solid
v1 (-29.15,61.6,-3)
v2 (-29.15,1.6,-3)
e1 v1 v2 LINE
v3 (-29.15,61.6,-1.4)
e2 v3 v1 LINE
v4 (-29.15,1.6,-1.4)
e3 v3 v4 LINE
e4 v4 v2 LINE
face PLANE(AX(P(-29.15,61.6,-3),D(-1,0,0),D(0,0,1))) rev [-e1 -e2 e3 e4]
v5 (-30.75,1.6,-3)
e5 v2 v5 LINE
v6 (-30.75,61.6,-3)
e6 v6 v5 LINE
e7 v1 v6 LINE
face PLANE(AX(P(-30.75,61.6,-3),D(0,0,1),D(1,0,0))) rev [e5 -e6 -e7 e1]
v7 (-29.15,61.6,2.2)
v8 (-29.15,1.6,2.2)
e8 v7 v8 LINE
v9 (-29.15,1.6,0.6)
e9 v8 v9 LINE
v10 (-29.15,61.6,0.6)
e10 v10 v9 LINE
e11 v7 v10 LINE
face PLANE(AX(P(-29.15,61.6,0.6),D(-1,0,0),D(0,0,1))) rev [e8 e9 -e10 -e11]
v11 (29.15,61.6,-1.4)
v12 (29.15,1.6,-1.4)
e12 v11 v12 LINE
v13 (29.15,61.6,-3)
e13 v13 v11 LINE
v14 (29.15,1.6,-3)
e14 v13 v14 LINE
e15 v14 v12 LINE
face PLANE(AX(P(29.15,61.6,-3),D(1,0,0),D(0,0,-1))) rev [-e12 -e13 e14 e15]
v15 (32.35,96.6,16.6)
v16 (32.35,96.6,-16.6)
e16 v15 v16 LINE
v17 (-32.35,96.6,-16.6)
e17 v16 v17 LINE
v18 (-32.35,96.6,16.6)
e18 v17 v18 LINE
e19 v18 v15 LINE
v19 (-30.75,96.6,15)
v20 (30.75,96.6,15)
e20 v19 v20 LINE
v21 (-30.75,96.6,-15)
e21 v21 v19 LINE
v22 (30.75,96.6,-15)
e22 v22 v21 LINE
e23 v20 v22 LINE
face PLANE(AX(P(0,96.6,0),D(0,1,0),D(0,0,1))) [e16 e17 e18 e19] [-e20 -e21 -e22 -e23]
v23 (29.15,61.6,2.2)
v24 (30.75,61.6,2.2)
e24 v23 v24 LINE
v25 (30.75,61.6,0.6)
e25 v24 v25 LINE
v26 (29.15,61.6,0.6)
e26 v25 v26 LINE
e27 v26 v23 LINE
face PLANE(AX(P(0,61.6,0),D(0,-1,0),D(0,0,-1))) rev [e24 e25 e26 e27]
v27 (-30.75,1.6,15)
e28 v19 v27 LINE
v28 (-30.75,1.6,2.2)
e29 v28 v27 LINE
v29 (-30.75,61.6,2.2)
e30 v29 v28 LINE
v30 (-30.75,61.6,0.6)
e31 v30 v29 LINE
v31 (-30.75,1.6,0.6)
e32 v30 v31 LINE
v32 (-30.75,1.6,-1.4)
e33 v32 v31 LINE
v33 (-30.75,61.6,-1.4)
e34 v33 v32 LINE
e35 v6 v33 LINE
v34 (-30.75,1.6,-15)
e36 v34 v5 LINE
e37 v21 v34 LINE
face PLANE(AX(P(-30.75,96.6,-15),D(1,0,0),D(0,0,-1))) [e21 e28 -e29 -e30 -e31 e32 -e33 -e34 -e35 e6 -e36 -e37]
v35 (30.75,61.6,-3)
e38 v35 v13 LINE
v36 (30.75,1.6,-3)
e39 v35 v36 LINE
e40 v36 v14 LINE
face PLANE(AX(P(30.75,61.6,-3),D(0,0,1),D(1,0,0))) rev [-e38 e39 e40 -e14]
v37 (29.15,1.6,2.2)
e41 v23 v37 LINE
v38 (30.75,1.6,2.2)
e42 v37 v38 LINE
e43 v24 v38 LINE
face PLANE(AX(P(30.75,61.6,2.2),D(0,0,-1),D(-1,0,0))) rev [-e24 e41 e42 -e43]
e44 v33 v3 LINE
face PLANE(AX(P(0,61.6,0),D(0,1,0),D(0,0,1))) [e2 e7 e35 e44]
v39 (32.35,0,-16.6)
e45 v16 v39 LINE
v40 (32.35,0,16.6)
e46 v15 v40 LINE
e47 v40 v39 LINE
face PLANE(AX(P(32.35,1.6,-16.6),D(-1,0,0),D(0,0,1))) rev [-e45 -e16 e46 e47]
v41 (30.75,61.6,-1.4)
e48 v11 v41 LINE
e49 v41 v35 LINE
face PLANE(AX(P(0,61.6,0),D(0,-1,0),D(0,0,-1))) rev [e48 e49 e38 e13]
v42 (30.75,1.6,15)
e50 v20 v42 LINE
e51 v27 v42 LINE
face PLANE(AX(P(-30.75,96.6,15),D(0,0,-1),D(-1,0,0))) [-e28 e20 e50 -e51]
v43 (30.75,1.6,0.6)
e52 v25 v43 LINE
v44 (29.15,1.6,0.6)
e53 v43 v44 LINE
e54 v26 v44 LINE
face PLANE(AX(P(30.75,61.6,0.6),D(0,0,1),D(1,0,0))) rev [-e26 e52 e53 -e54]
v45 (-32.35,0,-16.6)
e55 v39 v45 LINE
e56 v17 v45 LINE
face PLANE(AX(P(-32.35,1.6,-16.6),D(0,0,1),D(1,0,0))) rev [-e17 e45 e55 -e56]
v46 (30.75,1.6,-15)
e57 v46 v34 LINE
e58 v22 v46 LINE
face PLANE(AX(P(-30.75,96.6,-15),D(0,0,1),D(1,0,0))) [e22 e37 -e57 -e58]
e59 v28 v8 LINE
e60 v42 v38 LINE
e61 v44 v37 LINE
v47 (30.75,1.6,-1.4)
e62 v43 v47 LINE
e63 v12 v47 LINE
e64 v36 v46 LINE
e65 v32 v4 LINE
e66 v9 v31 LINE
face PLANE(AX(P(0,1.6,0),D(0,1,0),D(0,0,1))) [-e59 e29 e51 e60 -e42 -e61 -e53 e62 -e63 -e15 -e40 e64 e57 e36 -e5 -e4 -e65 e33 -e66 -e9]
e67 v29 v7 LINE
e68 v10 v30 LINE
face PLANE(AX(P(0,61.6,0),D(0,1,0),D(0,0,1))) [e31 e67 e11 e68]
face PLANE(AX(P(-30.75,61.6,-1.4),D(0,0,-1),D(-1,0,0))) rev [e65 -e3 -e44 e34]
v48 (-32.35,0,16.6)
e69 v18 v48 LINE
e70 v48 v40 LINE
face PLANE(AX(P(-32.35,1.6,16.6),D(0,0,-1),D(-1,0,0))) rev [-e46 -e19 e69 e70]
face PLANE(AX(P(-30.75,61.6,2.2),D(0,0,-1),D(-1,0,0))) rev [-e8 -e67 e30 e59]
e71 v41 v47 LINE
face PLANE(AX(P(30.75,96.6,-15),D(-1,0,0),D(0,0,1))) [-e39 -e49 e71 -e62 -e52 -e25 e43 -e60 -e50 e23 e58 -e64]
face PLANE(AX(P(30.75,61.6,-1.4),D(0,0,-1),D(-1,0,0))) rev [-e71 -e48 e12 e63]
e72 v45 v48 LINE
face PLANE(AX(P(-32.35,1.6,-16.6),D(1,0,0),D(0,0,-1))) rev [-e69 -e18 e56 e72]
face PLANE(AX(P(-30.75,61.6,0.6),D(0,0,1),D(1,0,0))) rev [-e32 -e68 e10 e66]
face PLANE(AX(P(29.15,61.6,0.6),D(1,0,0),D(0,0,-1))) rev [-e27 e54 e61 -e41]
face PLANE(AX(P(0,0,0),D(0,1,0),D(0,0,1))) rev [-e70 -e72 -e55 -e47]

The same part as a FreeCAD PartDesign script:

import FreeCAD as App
import Part
import Sketcher
Q = App.Units.Quantity

doc = App.newDocument("Part")
params = doc.addObject("Spreadsheet::Sheet", "Params")
for row, (alias, value) in enumerate([
    ("sketch1_width", "64.7 mm"),
    ("sketch1_height", "33.2 mm"),
    ("pad1_length", "1.6 mm"),
    ("sketch2_height", "30 mm"),
    ("sketch2_width", "64.7 mm"),
    ("sketch2_width2", "61.5 mm"),
    ("sketch2_height2", "33.2 mm"),
    ("pad2_length", "95 mm"),
    ("sketch3_width", "1.6 mm"),
    ("pad3_length", "60 mm"),
], start=1):
    params.set(f"A{row}", alias)
    params.set(f"B{row}", "=" + value)
    params.setAlias(f"B{row}", alias)

body = doc.addObject("PartDesign::Body", "Body")

# Sketch on XZ plane
sketch1 = body.newObject("Sketcher::SketchObject", "Sketch")
sketch1.AttachmentSupport = (doc.getObject("XZ_Plane"), [""])
sketch1.MapMode = "FlatFace"
sketch1.addGeometry(Part.LineSegment(App.Vector(-32, -17, 0), App.Vector(-32, 17, 0)), False)
sketch1.addGeometry(Part.LineSegment(App.Vector(-32, 17, 0), App.Vector(32, 17, 0)), False)
sketch1.addGeometry(Part.LineSegment(App.Vector(32, 17, 0), App.Vector(32, -17, 0)), False)
sketch1.addGeometry(Part.LineSegment(App.Vector(32, -17, 0), App.Vector(-32, -17, 0)), False)
sketch1.addConstraint(Sketcher.Constraint("Coincident", 0, 2, 1, 1))
sketch1.addConstraint(Sketcher.Constraint("Coincident", 1, 2, 2, 1))
sketch1.addConstraint(Sketcher.Constraint("Coincident", 2, 2, 3, 1))
sketch1.addConstraint(Sketcher.Constraint("Coincident", 3, 2, 0, 1))
sketch1.addConstraint(Sketcher.Constraint("Vertical", 0))
sketch1.addConstraint(Sketcher.Constraint("Horizontal", 1))
sketch1.addConstraint(Sketcher.Constraint("Vertical", 2))
sketch1.addConstraint(Sketcher.Constraint("Horizontal", 3))
sketch1.addConstraint(Sketcher.Constraint("Symmetric", 0, 2, 2, 2, -1, 1))
sketch1.addConstraint(Sketcher.Constraint("DistanceX", 1, 1, 1, 2, Q("64.7 mm")))
sketch1.addConstraint(Sketcher.Constraint("DistanceY", 0, 1, 0, 2, Q("33.2 mm")))
sketch1.setExpression("Constraints[9]", "Params.sketch1_width")
sketch1.setExpression("Constraints[10]", "Params.sketch1_height")
pad1 = body.newObject("PartDesign::Pad", "Pad")
pad1.Profile = sketch1
pad1.setExpression("Length", "Params.pad1_length")
pad1.Reversed = True

# Sketch on XZ plane
sketch2 = body.newObject("Sketcher::SketchObject", "Sketch001")
sketch2.AttachmentSupport = (doc.getObject("XZ_Plane"), [""])
sketch2.MapMode = "FlatFace"
sketch2.AttachmentOffset = App.Placement(App.Vector(0, 0, -1.6), App.Rotation())
sketch2.addGeometry(Part.LineSegment(App.Vector(-32, -17, 0), App.Vector(-32, 17, 0)), False)
sketch2.addGeometry(Part.LineSegment(App.Vector(-32, 17, 0), App.Vector(32, 17, 0)), False)
sketch2.addGeometry(Part.LineSegment(App.Vector(32, 17, 0), App.Vector(32, -17, 0)), False)
sketch2.addGeometry(Part.LineSegment(App.Vector(32, -17, 0), App.Vector(-32, -17, 0)), False)
sketch2.addGeometry(Part.LineSegment(App.Vector(31, 15, 0), App.Vector(-31, 15, 0)), False)
sketch2.addGeometry(Part.LineSegment(App.Vector(-31, 15, 0), App.Vector(-31, -15, 0)), False)
sketch2.addGeometry(Part.LineSegment(App.Vector(-31, -15, 0), App.Vector(31, -15, 0)), False)
sketch2.addGeometry(Part.LineSegment(App.Vector(31, -15, 0), App.Vector(31, 15, 0)), False)
sketch2.addConstraint(Sketcher.Constraint("Coincident", 0, 2, 1, 1))
sketch2.addConstraint(Sketcher.Constraint("Coincident", 1, 2, 2, 1))
sketch2.addConstraint(Sketcher.Constraint("Coincident", 2, 2, 3, 1))
sketch2.addConstraint(Sketcher.Constraint("Coincident", 3, 2, 0, 1))
sketch2.addConstraint(Sketcher.Constraint("Coincident", 4, 2, 5, 1))
sketch2.addConstraint(Sketcher.Constraint("Coincident", 5, 2, 6, 1))
sketch2.addConstraint(Sketcher.Constraint("Coincident", 6, 2, 7, 1))
sketch2.addConstraint(Sketcher.Constraint("Coincident", 7, 2, 4, 1))
sketch2.addConstraint(Sketcher.Constraint("Vertical", 0))
sketch2.addConstraint(Sketcher.Constraint("Horizontal", 1))
sketch2.addConstraint(Sketcher.Constraint("Vertical", 2))
sketch2.addConstraint(Sketcher.Constraint("Horizontal", 3))
sketch2.addConstraint(Sketcher.Constraint("Horizontal", 4))
sketch2.addConstraint(Sketcher.Constraint("Vertical", 5))
sketch2.addConstraint(Sketcher.Constraint("Horizontal", 6))
sketch2.addConstraint(Sketcher.Constraint("Vertical", 7))
sketch2.addConstraint(Sketcher.Constraint("Symmetric", 0, 2, 2, 2, -1, 1))
sketch2.addConstraint(Sketcher.Constraint("Symmetric", 4, 2, 6, 2, -1, 1))
sketch2.addConstraint(Sketcher.Constraint("DistanceY", 5, 2, 5, 1, Q("30 mm")))
sketch2.addConstraint(Sketcher.Constraint("DistanceX", 1, 1, 1, 2, Q("64.7 mm")))
sketch2.addConstraint(Sketcher.Constraint("DistanceX", 4, 2, 4, 1, Q("61.5 mm")))
sketch2.addConstraint(Sketcher.Constraint("DistanceY", 0, 1, 0, 2, Q("33.2 mm")))
sketch2.setExpression("Constraints[18]", "Params.sketch2_height")
sketch2.setExpression("Constraints[19]", "Params.sketch2_width")
sketch2.setExpression("Constraints[20]", "Params.sketch2_width2")
sketch2.setExpression("Constraints[21]", "Params.sketch2_height2")
pad2 = body.newObject("PartDesign::Pad", "Pad001")
pad2.Profile = sketch2
pad2.setExpression("Length", "Params.pad2_length")
pad2.Reversed = True

# Sketch on XZ plane
sketch3 = body.newObject("Sketcher::SketchObject", "Sketch002")
sketch3.AttachmentSupport = (doc.getObject("XZ_Plane"), [""])
sketch3.MapMode = "FlatFace"
sketch3.AttachmentOffset = App.Placement(App.Vector(0, 0, -1.6), App.Rotation())
sketch3.addGeometry(Part.LineSegment(App.Vector(-30.8, -3, 0), App.Vector(-30.8, -1.4, 0)), False)
sketch3.addGeometry(Part.LineSegment(App.Vector(-30.8, -1.4, 0), App.Vector(-29.1, -1.4, 0)), False)
sketch3.addGeometry(Part.LineSegment(App.Vector(-29.1, -1.4, 0), App.Vector(-29.1, -3, 0)), False)
sketch3.addGeometry(Part.LineSegment(App.Vector(-29.1, -3, 0), App.Vector(-30.8, -3, 0)), False)
sketch3.addGeometry(Part.LineSegment(App.Vector(29.1, 0.6, 0), App.Vector(29.1, 2.2, 0)), False)
sketch3.addGeometry(Part.LineSegment(App.Vector(29.1, 2.2, 0), App.Vector(30.8, 2.2, 0)), False)
sketch3.addGeometry(Part.LineSegment(App.Vector(30.8, 2.2, 0), App.Vector(30.8, 0.6, 0)), False)
sketch3.addGeometry(Part.LineSegment(App.Vector(30.8, 0.6, 0), App.Vector(29.1, 0.6, 0)), False)
sketch3.addGeometry(Part.LineSegment(App.Vector(-30.8, 0.6, 0), App.Vector(-30.8, 2.2, 0)), False)
sketch3.addGeometry(Part.LineSegment(App.Vector(-30.8, 2.2, 0), App.Vector(-29.1, 2.2, 0)), False)
sketch3.addGeometry(Part.LineSegment(App.Vector(-29.1, 2.2, 0), App.Vector(-29.1, 0.6, 0)), False)
sketch3.addGeometry(Part.LineSegment(App.Vector(-29.1, 0.6, 0), App.Vector(-30.8, 0.6, 0)), False)
sketch3.addGeometry(Part.LineSegment(App.Vector(29.1, -3, 0), App.Vector(29.1, -1.4, 0)), False)
sketch3.addGeometry(Part.LineSegment(App.Vector(29.1, -1.4, 0), App.Vector(30.8, -1.4, 0)), False)
sketch3.addGeometry(Part.LineSegment(App.Vector(30.8, -1.4, 0), App.Vector(30.8, -3, 0)), False)
sketch3.addGeometry(Part.LineSegment(App.Vector(30.8, -3, 0), App.Vector(29.1, -3, 0)), False)
sketch3.addConstraint(Sketcher.Constraint("Coincident", 0, 2, 1, 1))
sketch3.addConstraint(Sketcher.Constraint("Coincident", 1, 2, 2, 1))
sketch3.addConstraint(Sketcher.Constraint("Coincident", 2, 2, 3, 1))
sketch3.addConstraint(Sketcher.Constraint("Coincident", 3, 2, 0, 1))
sketch3.addConstraint(Sketcher.Constraint("Coincident", 4, 2, 5, 1))
sketch3.addConstraint(Sketcher.Constraint("Coincident", 5, 2, 6, 1))
sketch3.addConstraint(Sketcher.Constraint("Coincident", 6, 2, 7, 1))
sketch3.addConstraint(Sketcher.Constraint("Coincident", 7, 2, 4, 1))
sketch3.addConstraint(Sketcher.Constraint("Coincident", 8, 2, 9, 1))
sketch3.addConstraint(Sketcher.Constraint("Coincident", 9, 2, 10, 1))
sketch3.addConstraint(Sketcher.Constraint("Coincident", 10, 2, 11, 1))
sketch3.addConstraint(Sketcher.Constraint("Coincident", 11, 2, 8, 1))
sketch3.addConstraint(Sketcher.Constraint("Coincident", 12, 2, 13, 1))
sketch3.addConstraint(Sketcher.Constraint("Coincident", 13, 2, 14, 1))
sketch3.addConstraint(Sketcher.Constraint("Coincident", 14, 2, 15, 1))
sketch3.addConstraint(Sketcher.Constraint("Coincident", 15, 2, 12, 1))
sketch3.addConstraint(Sketcher.Constraint("Vertical", 0))
sketch3.addConstraint(Sketcher.Constraint("Horizontal", 1))
sketch3.addConstraint(Sketcher.Constraint("Vertical", 2))
sketch3.addConstraint(Sketcher.Constraint("Horizontal", 3))
sketch3.addConstraint(Sketcher.Constraint("Vertical", 4))
sketch3.addConstraint(Sketcher.Constraint("Horizontal", 5))
sketch3.addConstraint(Sketcher.Constraint("Vertical", 6))
sketch3.addConstraint(Sketcher.Constraint("Horizontal", 7))
sketch3.addConstraint(Sketcher.Constraint("Vertical", 8))
sketch3.addConstraint(Sketcher.Constraint("Horizontal", 9))
sketch3.addConstraint(Sketcher.Constraint("Vertical", 10))
sketch3.addConstraint(Sketcher.Constraint("Horizontal", 11))
sketch3.addConstraint(Sketcher.Constraint("Vertical", 12))
sketch3.addConstraint(Sketcher.Constraint("Horizontal", 13))
sketch3.addConstraint(Sketcher.Constraint("Vertical", 14))
sketch3.addConstraint(Sketcher.Constraint("Horizontal", 15))
sketch3.addConstraint(Sketcher.Constraint("Symmetric", 5, 2, 8, 2, -2))
sketch3.addConstraint(Sketcher.Constraint("Symmetric", 7, 2, 10, 2, -2))
sketch3.addConstraint(Sketcher.Constraint("Symmetric", 1, 2, 12, 2, -2))
sketch3.addConstraint(Sketcher.Constraint("Symmetric", 3, 2, 14, 2, -2))
sketch3.addConstraint(Sketcher.Constraint("Vertical", 3, 2, 8, 2))
sketch3.addConstraint(Sketcher.Constraint("Vertical", 2, 2, 9, 2))
sketch3.addConstraint(Sketcher.Constraint("Equal", 15, 0))
sketch3.addConstraint(Sketcher.Constraint("Equal", 2, 4))
sketch3.addConstraint(Sketcher.Constraint("DistanceX", 1, 1, 1, 2, Q("1.6 mm")))
sketch3.addConstraint(Sketcher.Constraint("DistanceY", 2, 2, -1, 1, Q("3 mm")))
sketch3.addConstraint(Sketcher.Constraint("DistanceY", 1, 2, 6, 2, Q("2 mm")))
sketch3.addConstraint(Sketcher.Constraint("DistanceX", 1, 2, 4, 2, Q("58.3 mm")))
sketch3.setExpression("Constraints[40]", "Params.sketch3_width")
pad3 = body.newObject("PartDesign::Pad", "Pad002")
pad3.Profile = sketch3
pad3.setExpression("Length", "Params.pad3_length")
pad3.Reversed = True

doc.recompute()
